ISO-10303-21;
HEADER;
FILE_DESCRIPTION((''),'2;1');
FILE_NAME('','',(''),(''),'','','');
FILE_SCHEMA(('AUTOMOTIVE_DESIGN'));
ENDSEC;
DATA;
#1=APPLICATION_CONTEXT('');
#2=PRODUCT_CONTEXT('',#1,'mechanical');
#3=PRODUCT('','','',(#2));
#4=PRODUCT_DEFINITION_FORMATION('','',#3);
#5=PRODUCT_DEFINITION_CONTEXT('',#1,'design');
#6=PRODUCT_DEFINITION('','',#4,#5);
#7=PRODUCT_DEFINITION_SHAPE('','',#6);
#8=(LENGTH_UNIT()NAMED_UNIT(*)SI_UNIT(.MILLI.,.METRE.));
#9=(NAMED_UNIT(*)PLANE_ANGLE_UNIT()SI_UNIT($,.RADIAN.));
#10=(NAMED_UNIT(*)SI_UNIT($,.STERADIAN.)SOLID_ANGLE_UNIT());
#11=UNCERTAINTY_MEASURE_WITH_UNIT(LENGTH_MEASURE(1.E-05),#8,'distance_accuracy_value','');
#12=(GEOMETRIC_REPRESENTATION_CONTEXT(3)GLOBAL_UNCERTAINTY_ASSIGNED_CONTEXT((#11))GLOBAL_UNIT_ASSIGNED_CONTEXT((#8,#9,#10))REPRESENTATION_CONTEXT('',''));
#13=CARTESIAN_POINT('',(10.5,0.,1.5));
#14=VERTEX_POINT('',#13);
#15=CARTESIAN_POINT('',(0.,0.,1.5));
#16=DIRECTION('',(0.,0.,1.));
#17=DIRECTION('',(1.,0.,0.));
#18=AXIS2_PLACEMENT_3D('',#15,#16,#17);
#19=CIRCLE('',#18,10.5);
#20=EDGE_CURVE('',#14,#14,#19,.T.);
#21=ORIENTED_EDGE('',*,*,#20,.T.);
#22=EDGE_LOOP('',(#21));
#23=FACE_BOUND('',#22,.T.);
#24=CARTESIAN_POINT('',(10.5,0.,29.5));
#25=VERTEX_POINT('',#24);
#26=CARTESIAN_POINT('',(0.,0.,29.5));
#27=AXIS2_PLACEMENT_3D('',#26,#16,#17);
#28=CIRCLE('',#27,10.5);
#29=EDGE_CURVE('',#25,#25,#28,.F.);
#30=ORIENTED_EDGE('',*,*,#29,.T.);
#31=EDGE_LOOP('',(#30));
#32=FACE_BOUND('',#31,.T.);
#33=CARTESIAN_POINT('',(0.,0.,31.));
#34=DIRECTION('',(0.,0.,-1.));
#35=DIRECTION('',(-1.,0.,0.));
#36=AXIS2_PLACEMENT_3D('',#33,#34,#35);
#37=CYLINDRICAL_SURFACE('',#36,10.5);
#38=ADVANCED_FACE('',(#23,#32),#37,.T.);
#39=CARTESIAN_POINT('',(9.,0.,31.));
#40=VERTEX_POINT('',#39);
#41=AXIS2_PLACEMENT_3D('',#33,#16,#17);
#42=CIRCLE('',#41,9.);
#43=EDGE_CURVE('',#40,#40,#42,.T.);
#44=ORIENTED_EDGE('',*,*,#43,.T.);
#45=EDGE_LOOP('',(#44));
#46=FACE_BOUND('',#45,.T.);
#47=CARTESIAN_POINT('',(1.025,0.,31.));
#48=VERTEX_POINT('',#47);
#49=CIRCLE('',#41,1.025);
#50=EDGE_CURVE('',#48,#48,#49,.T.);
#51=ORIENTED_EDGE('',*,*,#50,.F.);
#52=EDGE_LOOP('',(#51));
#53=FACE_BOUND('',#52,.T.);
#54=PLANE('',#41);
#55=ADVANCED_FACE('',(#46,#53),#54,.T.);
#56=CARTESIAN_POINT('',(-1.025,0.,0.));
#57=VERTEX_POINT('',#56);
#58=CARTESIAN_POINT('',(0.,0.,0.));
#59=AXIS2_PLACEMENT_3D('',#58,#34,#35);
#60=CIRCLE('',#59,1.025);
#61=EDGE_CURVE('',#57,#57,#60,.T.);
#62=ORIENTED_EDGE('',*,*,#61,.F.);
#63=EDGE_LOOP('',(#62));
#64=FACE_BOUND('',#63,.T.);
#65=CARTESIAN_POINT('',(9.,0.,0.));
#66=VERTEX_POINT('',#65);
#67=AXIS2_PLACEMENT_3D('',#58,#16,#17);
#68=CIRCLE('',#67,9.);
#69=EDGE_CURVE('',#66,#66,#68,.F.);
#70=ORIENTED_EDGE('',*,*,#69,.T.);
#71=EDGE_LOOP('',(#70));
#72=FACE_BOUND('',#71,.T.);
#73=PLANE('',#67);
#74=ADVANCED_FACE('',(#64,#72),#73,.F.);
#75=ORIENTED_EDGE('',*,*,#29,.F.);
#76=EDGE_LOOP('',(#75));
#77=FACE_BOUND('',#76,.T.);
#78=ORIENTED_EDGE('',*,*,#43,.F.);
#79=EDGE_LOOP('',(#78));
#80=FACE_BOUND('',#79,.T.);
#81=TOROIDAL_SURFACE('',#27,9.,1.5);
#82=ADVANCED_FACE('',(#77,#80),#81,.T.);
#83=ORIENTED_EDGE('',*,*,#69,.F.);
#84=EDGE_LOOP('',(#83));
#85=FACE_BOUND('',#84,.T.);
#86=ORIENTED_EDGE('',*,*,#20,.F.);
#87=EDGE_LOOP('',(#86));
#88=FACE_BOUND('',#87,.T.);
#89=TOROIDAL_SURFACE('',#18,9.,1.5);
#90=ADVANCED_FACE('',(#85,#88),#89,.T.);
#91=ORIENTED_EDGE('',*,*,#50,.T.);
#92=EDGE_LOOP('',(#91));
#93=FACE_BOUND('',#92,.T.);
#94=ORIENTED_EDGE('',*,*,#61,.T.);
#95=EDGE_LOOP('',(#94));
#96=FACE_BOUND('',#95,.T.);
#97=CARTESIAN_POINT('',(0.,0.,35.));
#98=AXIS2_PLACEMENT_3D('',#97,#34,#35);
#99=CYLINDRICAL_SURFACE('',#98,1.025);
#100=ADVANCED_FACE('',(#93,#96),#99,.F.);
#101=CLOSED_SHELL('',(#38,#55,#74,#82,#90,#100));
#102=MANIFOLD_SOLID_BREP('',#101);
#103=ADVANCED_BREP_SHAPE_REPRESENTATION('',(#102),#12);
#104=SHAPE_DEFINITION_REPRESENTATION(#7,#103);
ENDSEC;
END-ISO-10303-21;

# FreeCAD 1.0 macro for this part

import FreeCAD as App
import Part
import Sketcher

V = App.Vector


def edges_at(feature, points):
    """Names of the edges that pass closest to the given points."""
    edges = feature.Shape.Edges
    near = lambda p: min(range(len(edges)), key=lambda i: edges[i].distToShape(Part.Vertex(*p))[0])
    return sorted({f"Edge{near(p) + 1}" for p in points})

doc = App.newDocument("Part")
body = doc.addObject("PartDesign::Body", "Body")

# Sketch on XY plane
sketch1 = body.newObject("Sketcher::SketchObject", "Sketch")
sketch1.AttachmentSupport = (doc.getObject("XY_Plane"), [""])
sketch1.MapMode = "FlatFace"
sketch1.addGeometry(Part.Circle(V(0, 0, 0), V(0, 0, 1), 10.5), False)
sketch1.addConstraint([
    Sketcher.Constraint("Coincident", 0, 3, -1, 1),
    Sketcher.Constraint("Diameter", 0, 21.0),
])
pad1 = body.newObject("PartDesign::Pad", "Pad")
pad1.Profile = sketch1
pad1.Length = 31
doc.recompute()

fillet = body.newObject("PartDesign::Fillet", "Fillet")
fillet.Base = (pad1, edges_at(pad1, [(-10.5, 0, 0), (-10.5, 0, 31)]))
fillet.Radius = 1.5

# Sketch on XY plane
sketch2 = body.newObject("Sketcher::SketchObject", "Sketch001")
sketch2.AttachmentSupport = (doc.getObject("XY_Plane"), [""])
sketch2.MapMode = "FlatFace"
sketch2.addGeometry(Part.Circle(V(0, 0, 0), V(0, 0, 1), 1.025), False)
sketch2.addConstraint([
    Sketcher.Constraint("Coincident", 0, 3, -1, 1),
    Sketcher.Constraint("Diameter", 0, 2.05),
])
pocket1 = body.newObject("PartDesign::Pocket", "Pocket")
pocket1.Profile = sketch2
pocket1.Length = 35
pocket1.Reversed = True

doc.recompute()
